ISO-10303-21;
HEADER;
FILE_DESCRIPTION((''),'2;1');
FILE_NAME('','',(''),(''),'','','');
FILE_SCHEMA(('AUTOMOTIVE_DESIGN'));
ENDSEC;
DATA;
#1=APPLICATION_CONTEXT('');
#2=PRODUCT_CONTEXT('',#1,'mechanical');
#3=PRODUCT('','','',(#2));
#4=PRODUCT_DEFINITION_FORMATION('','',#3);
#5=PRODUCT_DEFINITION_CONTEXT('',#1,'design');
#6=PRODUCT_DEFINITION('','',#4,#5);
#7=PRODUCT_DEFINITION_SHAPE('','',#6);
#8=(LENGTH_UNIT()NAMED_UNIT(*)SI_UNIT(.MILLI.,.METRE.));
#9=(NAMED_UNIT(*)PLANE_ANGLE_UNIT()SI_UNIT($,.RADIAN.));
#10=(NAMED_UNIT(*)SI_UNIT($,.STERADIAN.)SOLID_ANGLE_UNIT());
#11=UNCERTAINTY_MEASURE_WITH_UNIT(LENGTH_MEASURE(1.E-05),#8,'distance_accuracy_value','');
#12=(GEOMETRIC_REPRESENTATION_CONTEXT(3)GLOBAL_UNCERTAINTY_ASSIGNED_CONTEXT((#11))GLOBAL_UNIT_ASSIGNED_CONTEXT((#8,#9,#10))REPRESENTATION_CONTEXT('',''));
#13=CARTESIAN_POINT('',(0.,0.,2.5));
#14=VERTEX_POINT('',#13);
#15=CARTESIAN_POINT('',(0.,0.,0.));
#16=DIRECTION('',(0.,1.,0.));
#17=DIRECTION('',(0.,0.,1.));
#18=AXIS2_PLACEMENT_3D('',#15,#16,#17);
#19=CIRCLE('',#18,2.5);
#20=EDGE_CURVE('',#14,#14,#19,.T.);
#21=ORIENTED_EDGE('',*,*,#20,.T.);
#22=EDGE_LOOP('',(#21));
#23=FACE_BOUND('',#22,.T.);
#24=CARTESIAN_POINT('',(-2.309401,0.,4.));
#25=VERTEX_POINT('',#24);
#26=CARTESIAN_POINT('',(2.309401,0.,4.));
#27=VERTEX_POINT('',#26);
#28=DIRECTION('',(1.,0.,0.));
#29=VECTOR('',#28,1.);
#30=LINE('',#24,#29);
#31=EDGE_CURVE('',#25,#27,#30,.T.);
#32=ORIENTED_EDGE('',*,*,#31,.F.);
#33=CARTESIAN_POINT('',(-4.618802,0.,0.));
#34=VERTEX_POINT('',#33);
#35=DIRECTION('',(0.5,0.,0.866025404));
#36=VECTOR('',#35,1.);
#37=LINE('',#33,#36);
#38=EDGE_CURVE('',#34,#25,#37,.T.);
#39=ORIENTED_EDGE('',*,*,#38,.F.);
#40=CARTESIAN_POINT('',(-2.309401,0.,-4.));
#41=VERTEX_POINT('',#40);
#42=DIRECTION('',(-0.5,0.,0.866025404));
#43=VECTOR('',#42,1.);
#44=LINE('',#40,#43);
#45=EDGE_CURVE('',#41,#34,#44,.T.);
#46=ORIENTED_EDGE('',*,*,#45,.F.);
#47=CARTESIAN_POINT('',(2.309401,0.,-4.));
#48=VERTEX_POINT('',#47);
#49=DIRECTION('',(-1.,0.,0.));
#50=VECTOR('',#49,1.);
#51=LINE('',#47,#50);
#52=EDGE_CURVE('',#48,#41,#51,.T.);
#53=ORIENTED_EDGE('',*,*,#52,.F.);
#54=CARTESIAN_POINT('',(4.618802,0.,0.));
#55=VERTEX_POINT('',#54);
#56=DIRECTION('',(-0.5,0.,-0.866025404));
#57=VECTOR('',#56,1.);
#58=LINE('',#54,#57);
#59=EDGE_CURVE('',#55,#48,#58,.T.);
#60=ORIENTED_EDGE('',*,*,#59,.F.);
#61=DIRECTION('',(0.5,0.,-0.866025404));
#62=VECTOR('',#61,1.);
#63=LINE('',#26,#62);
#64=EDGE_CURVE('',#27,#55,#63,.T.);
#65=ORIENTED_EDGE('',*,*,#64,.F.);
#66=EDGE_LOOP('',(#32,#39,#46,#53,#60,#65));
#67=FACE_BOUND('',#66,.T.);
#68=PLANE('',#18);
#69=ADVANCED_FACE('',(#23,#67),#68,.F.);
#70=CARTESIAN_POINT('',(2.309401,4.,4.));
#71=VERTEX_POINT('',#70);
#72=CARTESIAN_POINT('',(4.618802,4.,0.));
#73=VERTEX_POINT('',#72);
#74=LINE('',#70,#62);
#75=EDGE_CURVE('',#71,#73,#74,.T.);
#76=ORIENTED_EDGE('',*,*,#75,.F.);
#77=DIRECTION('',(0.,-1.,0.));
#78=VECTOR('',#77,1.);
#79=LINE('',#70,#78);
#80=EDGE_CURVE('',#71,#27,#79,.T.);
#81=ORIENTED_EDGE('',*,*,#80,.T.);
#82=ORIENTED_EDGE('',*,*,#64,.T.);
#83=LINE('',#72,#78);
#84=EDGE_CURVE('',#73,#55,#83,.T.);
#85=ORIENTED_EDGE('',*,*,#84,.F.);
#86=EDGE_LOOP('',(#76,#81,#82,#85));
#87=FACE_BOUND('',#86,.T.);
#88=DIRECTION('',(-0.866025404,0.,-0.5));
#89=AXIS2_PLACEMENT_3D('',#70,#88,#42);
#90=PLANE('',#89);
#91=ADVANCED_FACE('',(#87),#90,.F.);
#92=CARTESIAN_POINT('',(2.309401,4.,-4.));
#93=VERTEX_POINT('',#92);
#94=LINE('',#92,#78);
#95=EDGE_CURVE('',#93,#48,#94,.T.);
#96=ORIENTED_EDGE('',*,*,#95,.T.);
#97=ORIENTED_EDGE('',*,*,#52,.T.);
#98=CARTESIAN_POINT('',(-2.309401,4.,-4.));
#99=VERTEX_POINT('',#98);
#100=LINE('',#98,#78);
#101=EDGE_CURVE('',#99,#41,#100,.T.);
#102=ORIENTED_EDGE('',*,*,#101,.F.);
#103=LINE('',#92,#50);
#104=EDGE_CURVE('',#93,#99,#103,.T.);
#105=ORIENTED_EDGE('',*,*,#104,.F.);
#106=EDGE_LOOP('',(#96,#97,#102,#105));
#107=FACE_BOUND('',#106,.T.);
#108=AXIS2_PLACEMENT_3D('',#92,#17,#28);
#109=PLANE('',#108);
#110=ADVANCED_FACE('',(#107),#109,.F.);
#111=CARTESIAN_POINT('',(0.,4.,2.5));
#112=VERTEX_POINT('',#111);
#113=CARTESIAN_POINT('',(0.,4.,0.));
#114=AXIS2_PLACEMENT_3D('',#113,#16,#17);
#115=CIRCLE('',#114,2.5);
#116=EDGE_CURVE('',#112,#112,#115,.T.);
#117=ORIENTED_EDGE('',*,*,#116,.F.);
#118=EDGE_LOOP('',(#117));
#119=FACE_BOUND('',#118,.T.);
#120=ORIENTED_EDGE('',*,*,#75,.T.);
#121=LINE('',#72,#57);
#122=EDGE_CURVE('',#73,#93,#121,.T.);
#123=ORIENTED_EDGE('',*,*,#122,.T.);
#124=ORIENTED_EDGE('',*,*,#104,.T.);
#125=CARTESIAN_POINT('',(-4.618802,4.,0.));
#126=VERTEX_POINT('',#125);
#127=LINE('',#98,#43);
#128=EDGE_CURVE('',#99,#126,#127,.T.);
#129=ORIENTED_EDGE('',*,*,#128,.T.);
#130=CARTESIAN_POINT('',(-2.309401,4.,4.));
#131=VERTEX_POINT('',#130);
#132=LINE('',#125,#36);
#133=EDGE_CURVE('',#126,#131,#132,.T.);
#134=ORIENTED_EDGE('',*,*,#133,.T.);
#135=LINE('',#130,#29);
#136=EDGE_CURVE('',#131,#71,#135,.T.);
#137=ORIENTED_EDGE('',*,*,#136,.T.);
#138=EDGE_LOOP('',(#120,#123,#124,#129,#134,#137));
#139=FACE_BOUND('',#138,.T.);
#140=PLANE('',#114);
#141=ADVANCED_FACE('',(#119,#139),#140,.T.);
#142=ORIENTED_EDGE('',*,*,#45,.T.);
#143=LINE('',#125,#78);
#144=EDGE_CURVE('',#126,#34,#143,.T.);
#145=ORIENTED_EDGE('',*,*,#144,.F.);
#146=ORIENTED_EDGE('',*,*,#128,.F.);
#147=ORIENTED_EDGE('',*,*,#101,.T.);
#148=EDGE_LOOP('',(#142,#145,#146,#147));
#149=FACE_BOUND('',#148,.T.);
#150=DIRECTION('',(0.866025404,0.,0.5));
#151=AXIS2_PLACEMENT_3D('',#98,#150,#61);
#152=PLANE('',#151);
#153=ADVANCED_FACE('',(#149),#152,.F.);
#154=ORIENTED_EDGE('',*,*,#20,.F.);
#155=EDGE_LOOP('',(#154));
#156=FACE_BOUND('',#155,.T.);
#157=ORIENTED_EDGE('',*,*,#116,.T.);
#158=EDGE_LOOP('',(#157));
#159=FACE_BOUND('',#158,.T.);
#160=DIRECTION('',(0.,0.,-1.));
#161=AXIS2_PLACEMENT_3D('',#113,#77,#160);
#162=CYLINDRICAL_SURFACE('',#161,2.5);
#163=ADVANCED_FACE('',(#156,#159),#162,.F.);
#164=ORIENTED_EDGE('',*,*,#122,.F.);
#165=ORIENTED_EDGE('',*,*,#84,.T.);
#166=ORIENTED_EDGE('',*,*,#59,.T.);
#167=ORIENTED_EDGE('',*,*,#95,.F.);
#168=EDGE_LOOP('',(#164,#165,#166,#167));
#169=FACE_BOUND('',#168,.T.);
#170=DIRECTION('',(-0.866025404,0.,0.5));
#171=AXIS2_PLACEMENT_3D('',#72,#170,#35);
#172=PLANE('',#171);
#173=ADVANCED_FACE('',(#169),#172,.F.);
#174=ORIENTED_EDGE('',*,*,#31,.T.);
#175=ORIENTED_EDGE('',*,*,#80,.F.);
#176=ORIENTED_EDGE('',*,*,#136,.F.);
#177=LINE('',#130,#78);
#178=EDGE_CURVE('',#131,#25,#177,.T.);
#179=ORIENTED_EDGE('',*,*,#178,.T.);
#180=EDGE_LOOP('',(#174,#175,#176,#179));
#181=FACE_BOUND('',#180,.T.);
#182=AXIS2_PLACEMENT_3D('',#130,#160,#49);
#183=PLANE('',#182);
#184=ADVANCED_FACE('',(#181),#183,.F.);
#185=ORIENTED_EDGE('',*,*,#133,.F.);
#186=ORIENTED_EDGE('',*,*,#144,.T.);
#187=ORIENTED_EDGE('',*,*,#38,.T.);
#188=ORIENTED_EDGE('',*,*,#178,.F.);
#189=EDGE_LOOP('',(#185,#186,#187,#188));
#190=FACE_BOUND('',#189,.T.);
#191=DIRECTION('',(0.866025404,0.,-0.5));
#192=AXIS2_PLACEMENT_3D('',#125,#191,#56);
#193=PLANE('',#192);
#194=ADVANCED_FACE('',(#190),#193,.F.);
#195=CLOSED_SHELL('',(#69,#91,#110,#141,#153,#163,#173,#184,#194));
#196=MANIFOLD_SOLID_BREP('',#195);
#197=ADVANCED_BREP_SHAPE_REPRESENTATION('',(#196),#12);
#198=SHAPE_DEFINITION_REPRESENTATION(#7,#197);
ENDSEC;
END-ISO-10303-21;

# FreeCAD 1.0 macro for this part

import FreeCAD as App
import Part
import Sketcher
Q = App.Units.Quantity


def add_polygon(sketch, points):
    """Adds a closed chain of lines whose ends are joined by coincident constraints."""
    first, n = sketch.GeometryCount, len(points)
    for a, b in zip(points, points[1:] + points[:1]):
        sketch.addGeometry(Part.LineSegment(App.Vector(*a, 0), App.Vector(*b, 0)), False)
    for i in range(n):
        sketch.addConstraint(Sketcher.Constraint("Coincident", first + i, 2, first + (i + 1) % n, 1))

doc = App.newDocument("Part")
body = doc.addObject("PartDesign::Body", "Body")

# Sketch on XZ plane
sketch1 = body.newObject("Sketcher::SketchObject", "Sketch")
sketch1.AttachmentSupport = (doc.getObject("XZ_Plane"), [""])
sketch1.MapMode = "FlatFace"
add_polygon(sketch1, [(-4.6, 0), (-2.3, 4), (2.3, 4), (4.6, 0), (2.3, -4), (-2.3, -4)])  # lines 0-5
sketch1.addGeometry(Part.Circle(App.Vector(0, 0, 0), App.Vector(0, 0, 1), 2.5), False)  # 6
sketch1.addConstraint([
    Sketcher.Constraint("Horizontal", 1),
    Sketcher.Constraint("Horizontal", 4),
    Sketcher.Constraint("Coincident", 6, 3, -1, 1),
    Sketcher.Constraint("Symmetric", 0, 2, 3, 2, -1, 1),
    Sketcher.Constraint("Symmetric", 2, 2, 5, 2, -1, 1),
    Sketcher.Constraint("PointOnObject", 2, 2, -1),
    Sketcher.Constraint("Parallel", 2, 5),
    Sketcher.Constraint("Vertical", 1, 2, 3, 2),
    Sketcher.Constraint("Diameter", 6, Q("5 mm")),
    Sketcher.Constraint("Angle", 0, Q("60 deg")),
    Sketcher.Constraint("DistanceY", -1, 1, 0, 2, Q("4 mm")),
    Sketcher.Constraint("DistanceX", 0, 2, -1, 1, Q("2.309401 mm")),
])
pad1 = body.newObject("PartDesign::Pad", "Pad")
pad1.Profile = sketch1
pad1.Length = 4
pad1.Reversed = True

doc.recompute()
